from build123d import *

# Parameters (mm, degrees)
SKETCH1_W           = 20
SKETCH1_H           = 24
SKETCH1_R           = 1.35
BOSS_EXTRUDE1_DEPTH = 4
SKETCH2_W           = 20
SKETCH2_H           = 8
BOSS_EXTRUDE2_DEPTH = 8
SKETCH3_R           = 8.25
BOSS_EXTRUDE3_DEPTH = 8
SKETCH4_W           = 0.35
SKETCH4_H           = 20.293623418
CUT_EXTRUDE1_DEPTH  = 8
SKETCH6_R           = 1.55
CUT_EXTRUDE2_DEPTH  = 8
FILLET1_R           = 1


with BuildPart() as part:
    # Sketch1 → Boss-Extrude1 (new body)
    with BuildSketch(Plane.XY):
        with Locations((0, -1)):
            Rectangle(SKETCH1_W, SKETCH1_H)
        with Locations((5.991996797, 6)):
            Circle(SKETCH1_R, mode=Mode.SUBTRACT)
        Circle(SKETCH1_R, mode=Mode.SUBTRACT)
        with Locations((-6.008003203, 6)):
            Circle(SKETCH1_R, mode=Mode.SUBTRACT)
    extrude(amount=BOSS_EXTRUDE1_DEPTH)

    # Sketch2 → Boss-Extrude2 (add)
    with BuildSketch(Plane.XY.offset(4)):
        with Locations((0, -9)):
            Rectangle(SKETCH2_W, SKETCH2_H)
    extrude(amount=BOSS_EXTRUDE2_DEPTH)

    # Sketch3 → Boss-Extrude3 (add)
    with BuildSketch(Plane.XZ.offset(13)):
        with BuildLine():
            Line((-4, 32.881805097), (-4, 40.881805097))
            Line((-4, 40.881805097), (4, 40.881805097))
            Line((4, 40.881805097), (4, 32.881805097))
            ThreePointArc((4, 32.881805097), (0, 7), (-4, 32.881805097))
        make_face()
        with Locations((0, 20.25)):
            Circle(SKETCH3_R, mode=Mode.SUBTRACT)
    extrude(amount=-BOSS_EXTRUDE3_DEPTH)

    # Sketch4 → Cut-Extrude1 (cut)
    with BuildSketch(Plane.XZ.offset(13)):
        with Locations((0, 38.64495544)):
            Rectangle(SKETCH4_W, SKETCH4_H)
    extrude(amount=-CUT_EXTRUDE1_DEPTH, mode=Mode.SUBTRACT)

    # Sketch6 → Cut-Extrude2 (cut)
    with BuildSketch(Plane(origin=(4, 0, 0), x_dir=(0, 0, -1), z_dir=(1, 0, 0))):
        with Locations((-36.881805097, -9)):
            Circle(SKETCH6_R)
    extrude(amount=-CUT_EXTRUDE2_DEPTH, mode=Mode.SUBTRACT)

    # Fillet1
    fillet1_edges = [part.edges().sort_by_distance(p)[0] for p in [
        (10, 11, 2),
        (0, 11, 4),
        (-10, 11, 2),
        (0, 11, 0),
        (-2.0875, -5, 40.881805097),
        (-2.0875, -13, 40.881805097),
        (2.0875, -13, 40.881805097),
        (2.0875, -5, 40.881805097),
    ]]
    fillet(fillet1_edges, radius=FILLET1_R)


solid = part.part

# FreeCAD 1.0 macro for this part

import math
import FreeCAD as App
import Part
import Sketcher

V = App.Vector


def edges_at(feature, points):
    """Names of the edges that pass closest to the given points."""
    edges = feature.Shape.Edges
    near = lambda p: min(range(len(edges)), key=lambda i: edges[i].distToShape(Part.Vertex(*p))[0])
    return sorted({f"Edge{near(p) + 1}" for p in points})


def add_polygon(sketch, points):
    """Adds a closed chain of lines whose ends are joined by coincident constraints."""
    first, n = sketch.GeometryCount, len(points)
    for a, b in zip(points, points[1:] + points[:1]):
        sketch.addGeometry(Part.LineSegment(App.Vector(*a, 0), App.Vector(*b, 0)), False)
    for i in range(n):
        sketch.addConstraint(Sketcher.Constraint("Coincident", first + i, 2, first + (i + 1) % n, 1))

doc = App.newDocument("Part")
body = doc.addObject("PartDesign::Body", "Body")

# Sketch on XY plane
sketch1 = body.newObject("Sketcher::SketchObject", "Sketch")
sketch1.AttachmentSupport = (doc.getObject("XY_Plane"), [""])
sketch1.MapMode = "FlatFace"
add_polygon(sketch1, [(-10, 11), (-10, -13), (10, -13), (10, 11)])  # lines 0-3
sketch1.addGeometry(Part.Circle(V(0, 0, 0), V(0, 0, 1), 1.4), False)  # 4
sketch1.addGeometry(Part.Circle(V(-6, 6, 0), V(0, 0, 1), 1.4), False)  # 5
sketch1.addGeometry(Part.Circle(V(6, 6, 0), V(0, 0, 1), 1.4), False)  # 6
sketch1.addConstraint([
    Sketcher.Constraint("Vertical", 0),
    Sketcher.Constraint("Horizontal", 1),
    Sketcher.Constraint("Vertical", 2),
    Sketcher.Constraint("Horizontal", 3),
    Sketcher.Constraint("Coincident", 4, 3, -1, 1),
    Sketcher.Constraint("Equal", 4, 5),
    Sketcher.Constraint("Equal", 5, 6),
    Sketcher.Constraint("Horizontal", 5, 3, 6, 3),
    Sketcher.Constraint("Diameter", 4, 2.7),
    Sketcher.Constraint("DistanceX", 1, 1, 1, 2, 20.0),
    Sketcher.Constraint("DistanceY", 0, 2, 0, 1, 24.0),
    Sketcher.Constraint("DistanceY", -1, 1, 5, 3, 6.0),
    Sketcher.Constraint("DistanceX", 0, 2, -1, 1, 10.0),
    Sketcher.Constraint("DistanceY", 0, 2, -1, 1, 13.0),
    Sketcher.Constraint("DistanceX", 5, 3, 6, 3, 12.0),
    Sketcher.Constraint("DistanceX", 5, 3, -1, 1, 6.008003),
])
pad1 = body.newObject("PartDesign::Pad", "Pad")
pad1.Profile = sketch1
pad1.Length = 4

# Sketch on XY plane
sketch2 = body.newObject("Sketcher::SketchObject", "Sketch001")
sketch2.AttachmentSupport = (doc.getObject("XY_Plane"), [""])
sketch2.MapMode = "FlatFace"
sketch2.AttachmentOffset = App.Placement(V(0, 0, 4), App.Rotation())
add_polygon(sketch2, [(-10, -5), (-10, -13), (10, -13), (10, -5)])  # lines 0-3
sketch2.addConstraint([
    Sketcher.Constraint("Vertical", 0),
    Sketcher.Constraint("Horizontal", 1),
    Sketcher.Constraint("Vertical", 2),
    Sketcher.Constraint("Horizontal", 3),
    Sketcher.Constraint("DistanceX", 1, 1, 1, 2, 20.0),
    Sketcher.Constraint("DistanceY", 0, 2, 0, 1, 8.0),
    Sketcher.Constraint("DistanceX", 0, 2, -1, 1, 10.0),
    Sketcher.Constraint("DistanceY", 0, 2, -1, 1, 13.0),
])
pad2 = body.newObject("PartDesign::Pad", "Pad001")
pad2.Profile = sketch2
pad2.Length = 8

# Sketch on XZ plane
sketch3 = body.newObject("Sketcher::SketchObject", "Sketch002")
sketch3.AttachmentSupport = (doc.getObject("XZ_Plane"), [""])
sketch3.MapMode = "FlatFace"
sketch3.AttachmentOffset = App.Placement(V(0, 0, 13), App.Rotation())
sketch3.addGeometry([
    Part.LineSegment(V(-4, 41, 0), V(-4, 33, 0)),  # 0
    Part.ArcOfCircle(Part.Circle(V(0, 20, 0), V(0, 0, 1), 13), math.radians(108), math.radians(432)),  # 1
    Part.LineSegment(V(4, 33, 0), V(4, 41, 0)),  # 2
    Part.LineSegment(V(4, 41, 0), V(-4, 41, 0)),  # 3
    Part.Circle(V(0, 20, 0), V(0, 0, 1), 8),  # 4
], False)
sketch3.addConstraint([
    Sketcher.Constraint("Coincident", 0, 2, 1, 1),
    Sketcher.Constraint("Coincident", 1, 2, 2, 1),
    Sketcher.Constraint("Coincident", 2, 2, 3, 1),
    Sketcher.Constraint("Coincident", 3, 2, 0, 1),
    Sketcher.Constraint("Vertical", 0),
    Sketcher.Constraint("Vertical", 2),
    Sketcher.Constraint("Horizontal", 3),
    Sketcher.Constraint("Coincident", 4, 3, 1, 3),
    Sketcher.Constraint("Symmetric", 0, 2, 1, 2, -2),
    Sketcher.Constraint("Equal", 3, 0),
    Sketcher.Constraint("Diameter", 4, 16.5),
    Sketcher.Constraint("DistanceX", 3, 2, 3, 1, 8.0),
    Sketcher.Constraint("Radius", 1, 13.25),
    Sketcher.Constraint("DistanceY", -1, 1, 1, 3, 20.25),
])
pad3 = body.newObject("PartDesign::Pad", "Pad002")
pad3.Profile = sketch3
pad3.Length = 8
pad3.Reversed = True

# Sketch on XZ plane
sketch4 = body.newObject("Sketcher::SketchObject", "Sketch003")
sketch4.AttachmentSupport = (doc.getObject("XZ_Plane"), [""])
sketch4.MapMode = "FlatFace"
sketch4.AttachmentOffset = App.Placement(V(0, 0, 13), App.Rotation())
add_polygon(sketch4, [(-0.17, 48.79), (-0.17, 28.5), (0.17, 28.5), (0.17, 48.79)])  # lines 0-3
sketch4.addConstraint([
    Sketcher.Constraint("Vertical", 0),
    Sketcher.Constraint("Horizontal", 1),
    Sketcher.Constraint("Vertical", 2),
    Sketcher.Constraint("Horizontal", 3),
    Sketcher.Constraint("DistanceX", 1, 1, 1, 2, 0.35),
    Sketcher.Constraint("DistanceX", 0, 2, -1, 1, 0.175),
    Sketcher.Constraint("DistanceY", 0, 2, 0, 1, 20.293623),
    Sketcher.Constraint("DistanceY", -1, 1, 0, 2, 28.498144),
])
pocket1 = body.newObject("PartDesign::Pocket", "Pocket")
pocket1.Profile = sketch4
pocket1.Length = 8

# Sketch on YZ plane
sketch5 = body.newObject("Sketcher::SketchObject", "Sketch004")
sketch5.AttachmentSupport = (doc.getObject("YZ_Plane"), [""])
sketch5.MapMode = "FlatFace"
sketch5.AttachmentOffset = App.Placement(V(0, 0, 4), App.Rotation())
sketch5.addGeometry(Part.Circle(V(-9, 36.9, 0), V(0, 0, 1), 1.6), False)
sketch5.addConstraint([
    Sketcher.Constraint("Diameter", 0, 3.1),
    Sketcher.Constraint("DistanceX", 0, 3, -1, 1, 9.0),
    Sketcher.Constraint("DistanceY", -1, 1, 0, 3, 36.881805),
])
pocket2 = body.newObject("PartDesign::Pocket", "Pocket001")
pocket2.Profile = sketch5
pocket2.Length = 8
doc.recompute()

fillet = body.newObject("PartDesign::Fillet", "Fillet")
fillet.Base = (pocket2, edges_at(pocket2, [
    (10, 11, 2),
    (0, 11, 4),
    (-10, 11, 2),
    (0, 11, 0),
    (-2.087, -5, 40.882),
    (-2.087, -13, 40.882),
    (2.087, -13, 40.882),
    (2.087, -5, 40.882),
]))
fillet.Radius = 1

doc.recompute()
